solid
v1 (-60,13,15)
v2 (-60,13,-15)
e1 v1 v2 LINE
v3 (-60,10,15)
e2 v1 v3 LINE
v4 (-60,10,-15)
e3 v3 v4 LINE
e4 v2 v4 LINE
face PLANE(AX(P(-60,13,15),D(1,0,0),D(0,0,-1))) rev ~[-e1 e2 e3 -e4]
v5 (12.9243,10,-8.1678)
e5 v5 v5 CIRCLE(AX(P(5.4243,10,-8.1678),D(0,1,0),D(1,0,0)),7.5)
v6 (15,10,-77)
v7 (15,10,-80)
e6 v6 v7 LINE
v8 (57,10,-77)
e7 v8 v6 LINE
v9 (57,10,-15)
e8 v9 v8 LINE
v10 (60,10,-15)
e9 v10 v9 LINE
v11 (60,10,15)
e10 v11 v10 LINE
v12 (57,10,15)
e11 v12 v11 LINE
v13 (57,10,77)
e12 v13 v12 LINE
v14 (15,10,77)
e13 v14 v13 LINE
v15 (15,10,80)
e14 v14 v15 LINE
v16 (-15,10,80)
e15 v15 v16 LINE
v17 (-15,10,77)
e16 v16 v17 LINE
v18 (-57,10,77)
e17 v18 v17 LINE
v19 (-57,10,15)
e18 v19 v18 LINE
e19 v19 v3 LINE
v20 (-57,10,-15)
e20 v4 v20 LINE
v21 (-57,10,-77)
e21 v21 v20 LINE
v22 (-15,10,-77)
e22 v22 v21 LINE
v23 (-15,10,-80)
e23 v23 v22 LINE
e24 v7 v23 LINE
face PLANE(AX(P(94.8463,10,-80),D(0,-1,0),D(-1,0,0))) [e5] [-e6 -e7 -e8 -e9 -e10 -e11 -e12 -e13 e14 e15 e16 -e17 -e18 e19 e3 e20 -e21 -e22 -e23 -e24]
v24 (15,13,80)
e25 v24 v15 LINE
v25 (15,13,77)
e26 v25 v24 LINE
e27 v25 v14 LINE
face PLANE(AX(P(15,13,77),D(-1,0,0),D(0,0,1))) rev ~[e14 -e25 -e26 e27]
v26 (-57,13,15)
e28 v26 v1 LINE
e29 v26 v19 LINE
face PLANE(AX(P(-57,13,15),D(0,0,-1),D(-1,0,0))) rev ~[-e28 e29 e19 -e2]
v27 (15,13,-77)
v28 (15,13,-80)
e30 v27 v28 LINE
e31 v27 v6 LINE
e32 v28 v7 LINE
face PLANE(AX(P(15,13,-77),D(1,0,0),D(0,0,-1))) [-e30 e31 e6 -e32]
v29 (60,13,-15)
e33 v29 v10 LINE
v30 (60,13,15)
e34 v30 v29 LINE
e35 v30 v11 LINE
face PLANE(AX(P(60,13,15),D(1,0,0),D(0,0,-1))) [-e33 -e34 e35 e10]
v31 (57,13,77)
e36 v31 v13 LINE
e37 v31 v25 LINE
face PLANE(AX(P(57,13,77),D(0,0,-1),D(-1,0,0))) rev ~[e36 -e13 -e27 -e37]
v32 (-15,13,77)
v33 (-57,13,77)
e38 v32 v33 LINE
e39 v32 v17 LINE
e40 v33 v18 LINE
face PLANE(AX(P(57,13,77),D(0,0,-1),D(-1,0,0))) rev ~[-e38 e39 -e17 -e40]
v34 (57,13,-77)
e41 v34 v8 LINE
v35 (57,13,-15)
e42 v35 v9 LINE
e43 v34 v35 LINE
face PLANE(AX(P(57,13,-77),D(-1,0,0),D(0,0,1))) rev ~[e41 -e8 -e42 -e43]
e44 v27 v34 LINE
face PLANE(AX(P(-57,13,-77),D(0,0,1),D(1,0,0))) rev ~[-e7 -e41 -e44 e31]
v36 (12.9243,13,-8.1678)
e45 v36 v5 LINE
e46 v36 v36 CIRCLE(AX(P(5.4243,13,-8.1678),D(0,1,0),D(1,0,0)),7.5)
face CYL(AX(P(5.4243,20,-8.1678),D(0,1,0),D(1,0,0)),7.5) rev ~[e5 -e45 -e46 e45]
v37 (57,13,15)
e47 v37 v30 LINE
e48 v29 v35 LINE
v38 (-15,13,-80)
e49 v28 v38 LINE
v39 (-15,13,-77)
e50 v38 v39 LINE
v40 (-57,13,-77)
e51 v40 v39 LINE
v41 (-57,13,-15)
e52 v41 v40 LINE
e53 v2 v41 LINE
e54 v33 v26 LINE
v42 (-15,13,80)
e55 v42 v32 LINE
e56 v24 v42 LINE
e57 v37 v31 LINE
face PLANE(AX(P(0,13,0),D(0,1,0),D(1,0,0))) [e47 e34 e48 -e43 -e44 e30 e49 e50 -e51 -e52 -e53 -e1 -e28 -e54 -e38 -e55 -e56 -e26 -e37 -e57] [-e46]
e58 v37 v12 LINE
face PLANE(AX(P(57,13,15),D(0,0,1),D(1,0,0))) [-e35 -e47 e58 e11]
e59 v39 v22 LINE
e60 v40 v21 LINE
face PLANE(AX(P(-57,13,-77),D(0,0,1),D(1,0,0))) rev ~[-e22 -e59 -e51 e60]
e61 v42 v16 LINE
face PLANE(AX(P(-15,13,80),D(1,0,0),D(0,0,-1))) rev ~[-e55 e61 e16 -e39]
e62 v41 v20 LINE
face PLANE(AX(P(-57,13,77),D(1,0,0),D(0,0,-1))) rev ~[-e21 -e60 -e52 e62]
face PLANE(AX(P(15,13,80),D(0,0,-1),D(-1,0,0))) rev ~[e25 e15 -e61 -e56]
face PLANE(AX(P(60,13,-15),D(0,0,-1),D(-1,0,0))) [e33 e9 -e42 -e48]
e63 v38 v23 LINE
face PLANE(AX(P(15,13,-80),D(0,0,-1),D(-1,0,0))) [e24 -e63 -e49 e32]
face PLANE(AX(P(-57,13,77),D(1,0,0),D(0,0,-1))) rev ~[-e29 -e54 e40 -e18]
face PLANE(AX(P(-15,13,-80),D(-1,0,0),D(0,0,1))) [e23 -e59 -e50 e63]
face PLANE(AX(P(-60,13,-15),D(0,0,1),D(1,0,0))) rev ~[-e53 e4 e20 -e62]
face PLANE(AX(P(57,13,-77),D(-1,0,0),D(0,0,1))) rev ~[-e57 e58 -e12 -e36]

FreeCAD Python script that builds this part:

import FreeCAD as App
import Part
import Sketcher


def add_polygon(sketch, points):
    """Adds a closed chain of lines whose ends are joined by coincident constraints."""
    first, n = sketch.GeometryCount, len(points)
    for a, b in zip(points, points[1:] + points[:1]):
        sketch.addGeometry(Part.LineSegment(App.Vector(*a, 0), App.Vector(*b, 0)), False)
    for i in range(n):
        sketch.addConstraint(Sketcher.Constraint("Coincident", first + i, 2, first + (i + 1) % n, 1))

doc = App.newDocument("Part")
body = doc.addObject("PartDesign::Body", "Body")

sketch1 = doc.addObject("Sketcher::SketchObject", "Sketch")
body.addObject(sketch1)
sketch1.AttachmentSupport = (doc.XZ_Plane, [""])
sketch1.MapMode = "FlatFace"
add_polygon(sketch1, [(-60, -80), (-60, 80), (60, 80), (60, -80)])
sketch1.addConstraint([
    Sketcher.Constraint("Vertical", 0),
    Sketcher.Constraint("Horizontal", 1),
    Sketcher.Constraint("Vertical", 2),
    Sketcher.Constraint("Horizontal", 3),
    Sketcher.Constraint("Symmetric", 0, 2, 2, 2, -1, 1),
    Sketcher.Constraint("DistanceX", 1, 1, 1, 2, 120.0),
    Sketcher.Constraint("DistanceY", 0, 1, 0, 2, 160.0),
])
pad1 = doc.addObject("PartDesign::Pad", "Pad")
body.addObject(pad1)
pad1.Profile = sketch1
pad1.Length = 60
pad1.Reversed = True

sketch2 = doc.addObject("Sketcher::SketchObject", "Sketch001")
body.addObject(sketch2)
sketch2.AttachmentSupport = (doc.XZ_Plane, [""])
sketch2.MapMode = "FlatFace"
sketch2.AttachmentOffset = App.Placement(App.Vector(0, 0, -60), App.Rotation())
add_polygon(sketch2, [(55, 90), (55, -80), (-55, -80), (-55, 90)])
sketch2.addConstraint([
    Sketcher.Constraint("Vertical", 0),
    Sketcher.Constraint("Horizontal", 1),
    Sketcher.Constraint("Vertical", 2),
    Sketcher.Constraint("Horizontal", 3),
    Sketcher.Constraint("DistanceX", 1, 2, 1, 1, 110.0),
    Sketcher.Constraint("DistanceX", -1, 1, 0, 2, 55.0),
    Sketcher.Constraint("DistanceY", 0, 2, -1, 1, 80.0),
    Sketcher.Constraint("DistanceY", 0, 2, 0, 1, 169.711),
])
pocket1 = doc.addObject("PartDesign::Pocket", "Pocket")
body.addObject(pocket1)
pocket1.Profile = sketch2
pocket1.Length = 40
pocket1.Reversed = True

sketch3 = doc.addObject("Sketcher::SketchObject", "Sketch002")
body.addObject(sketch3)
sketch3.AttachmentSupport = (doc.XY_Plane, [""])
sketch3.MapMode = "FlatFace"
sketch3.AttachmentOffset = App.Placement(App.Vector(0, 0, -80), App.Rotation())
add_polygon(sketch3, [(-96, 10), (95, 10), (95, -37), (-96, -37)])
sketch3.addConstraint([
    Sketcher.Constraint("Horizontal", 0),
    Sketcher.Constraint("Vertical", 1),
    Sketcher.Constraint("Horizontal", 2),
    Sketcher.Constraint("Vertical", 3),
    Sketcher.Constraint("DistanceY", -1, 1, 0, 2, 10.0),
    Sketcher.Constraint("DistanceX", 0, 1, 0, 2, 191.1097),
    Sketcher.Constraint("DistanceY", 1, 2, 1, 1, 46.9465),
    Sketcher.Constraint("DistanceX", -1, 1, 0, 2, 94.8463),
])
pocket2 = doc.addObject("PartDesign::Pocket", "Pocket001")
body.addObject(pocket2)
pocket2.Profile = sketch3
pocket2.Type = "ThroughAll"
pocket2.Reversed = True

sketch4 = doc.addObject("Sketcher::SketchObject", "Sketch003")
body.addObject(sketch4)
sketch4.AttachmentSupport = (doc.XY_Plane, [""])
sketch4.MapMode = "FlatFace"
sketch4.AttachmentOffset = App.Placement(App.Vector(0, 0, 80), App.Rotation())
add_polygon(sketch4, [(55, 60), (-55, 60), (-55, 20), (55, 20)])
sketch4.addConstraint([
    Sketcher.Constraint("Horizontal", 0),
    Sketcher.Constraint("Vertical", 1),
    Sketcher.Constraint("Horizontal", 2),
    Sketcher.Constraint("Vertical", 3),
    Sketcher.Constraint("DistanceX", 0, 2, 0, 1, 110.0),
    Sketcher.Constraint("DistanceY", 1, 2, 1, 1, 40.0),
    Sketcher.Constraint("DistanceX", 0, 2, -1, 1, 55.0),
    Sketcher.Constraint("DistanceY", -1, 1, 0, 2, 60.0),
])
pad2 = doc.addObject("PartDesign::Pad", "Pad001")
body.addObject(pad2)
pad2.Profile = sketch4
pad2.Length = 5
pad2.Reversed = True

sketch5 = doc.addObject("Sketcher::SketchObject", "Sketch004")
body.addObject(sketch5)
sketch5.AttachmentSupport = (doc.XY_Plane, [""])
sketch5.MapMode = "FlatFace"
sketch5.AttachmentOffset = App.Placement(App.Vector(0, 0, -80), App.Rotation())
add_polygon(sketch5, [(55, 60), (55, 20), (-55, 20), (-55, 60)])
sketch5.addConstraint([
    Sketcher.Constraint("Vertical", 0),
    Sketcher.Constraint("Horizontal", 1),
    Sketcher.Constraint("Vertical", 2),
    Sketcher.Constraint("Horizontal", 3),
    Sketcher.Constraint("DistanceX", 1, 2, 1, 1, 110.0),
    Sketcher.Constraint("DistanceY", 0, 2, 0, 1, 40.0),
    Sketcher.Constraint("DistanceX", -1, 1, 0, 2, 55.0),
    Sketcher.Constraint("DistanceY", -1, 1, 0, 2, 20.0),
])
pad3 = doc.addObject("PartDesign::Pad", "Pad002")
body.addObject(pad3)
pad3.Profile = sketch5
pad3.Length = 5

sketch6 = doc.addObject("Sketcher::SketchObject", "Sketch005")
body.addObject(sketch6)
sketch6.AttachmentSupport = (doc.XZ_Plane, [""])
sketch6.MapMode = "FlatFace"
sketch6.AttachmentOffset = App.Placement(App.Vector(0, 0, -20), App.Rotation())
sketch6.addGeometry(Part.Circle(App.Vector(5, -8, 0), App.Vector(0, 0, 1), 8), False)
sketch6.addConstraint([
    Sketcher.Constraint("Diameter", 0, 15.0),
    Sketcher.Constraint("DistanceX", -1, 1, 0, 3, 5.4243),
    Sketcher.Constraint("DistanceY", 0, 3, -1, 1, 8.1678),
])
pocket3 = doc.addObject("PartDesign::Pocket", "Pocket002")
body.addObject(pocket3)
pocket3.Profile = sketch6
pocket3.Type = "ThroughAll"
pocket3.Reversed = True

sketch7 = doc.addObject("Sketcher::SketchObject", "Sketch006")
body.addObject(sketch7)
sketch7.AttachmentSupport = (doc.XZ_Plane, [""])
sketch7.MapMode = "FlatFace"
sketch7.AttachmentOffset = App.Placement(App.Vector(0, 0, -60), App.Rotation())
add_polygon(sketch7, [(60, -80), (-60, -80), (-60, 80), (60, 80)])
sketch7.addConstraint([
    Sketcher.Constraint("Horizontal", 0),
    Sketcher.Constraint("Vertical", 1),
    Sketcher.Constraint("Horizontal", 2),
    Sketcher.Constraint("Vertical", 3),
    Sketcher.Constraint("Symmetric", 0, 2, 2, 2, -1, 1),
    Sketcher.Constraint("DistanceX", 0, 2, 0, 1, 120.0),
    Sketcher.Constraint("DistanceY", 1, 1, 1, 2, 160.0),
])
pocket4 = doc.addObject("PartDesign::Pocket", "Pocket003")
body.addObject(pocket4)
pocket4.Profile = sketch7
pocket4.Length = 40
pocket4.Reversed = True

sketch8 = doc.addObject("Sketcher::SketchObject", "Sketch007")
body.addObject(sketch8)
sketch8.AttachmentSupport = (doc.XZ_Plane, [""])
sketch8.MapMode = "FlatFace"
sketch8.AttachmentOffset = App.Placement(App.Vector(0, 0, -20), App.Rotation())
add_polygon(sketch8, [(-60, -80), (-60, 80), (60, 80), (60, -80)])
sketch8.addConstraint([
    Sketcher.Constraint("Vertical", 0),
    Sketcher.Constraint("Horizontal", 1),
    Sketcher.Constraint("Vertical", 2),
    Sketcher.Constraint("Horizontal", 3),
    Sketcher.Constraint("Symmetric", 0, 2, 2, 2, -1, 1),
    Sketcher.Constraint("DistanceX", 1, 1, 1, 2, 120.0),
    Sketcher.Constraint("DistanceY", 0, 1, 0, 2, 160.0),
])
pocket5 = doc.addObject("PartDesign::Pocket", "Pocket004")
body.addObject(pocket5)
pocket5.Profile = sketch8
pocket5.Length = 7
pocket5.Reversed = True

sketch9 = doc.addObject("Sketcher::SketchObject", "Sketch008")
body.addObject(sketch9)
sketch9.AttachmentSupport = (doc.XZ_Plane, [""])
sketch9.MapMode = "FlatFace"
sketch9.AttachmentOffset = App.Placement(App.Vector(0, 0, -13), App.Rotation())
add_polygon(sketch9, [(-60, -80), (-60, 80), (60, 80), (60, -80)])
add_polygon(sketch9, [(-57, -77), (57, -77), (57, 77), (-57, 77)])
sketch9.addConstraint([
    Sketcher.Constraint("Vertical", 0),
    Sketcher.Constraint("Horizontal", 1),
    Sketcher.Constraint("Vertical", 2),
    Sketcher.Constraint("Horizontal", 3),
    Sketcher.Constraint("Horizontal", 4),
    Sketcher.Constraint("Vertical", 5),
    Sketcher.Constraint("Horizontal", 6),
    Sketcher.Constraint("Vertical", 7),
    Sketcher.Constraint("Symmetric", 0, 2, 2, 2, -1, 1),
    Sketcher.Constraint("Symmetric", 4, 2, 6, 2, -1, 1),
    Sketcher.Constraint("DistanceX", 4, 2, 2, 2, 3.0),
    Sketcher.Constraint("DistanceY", 2, 2, 4, 2, 3.0),
    Sketcher.Constraint("DistanceX", 1, 1, 1, 2, 120.0),
    Sketcher.Constraint("DistanceY", 0, 1, 0, 2, 160.0),
])
pocket6 = doc.addObject("PartDesign::Pocket", "Pocket005")
body.addObject(pocket6)
pocket6.Profile = sketch9
pocket6.Type = "ThroughAll"
pocket6.Reversed = True

sketch10 = doc.addObject("Sketcher::SketchObject", "Sketch009")
body.addObject(sketch10)
sketch10.AttachmentSupport = (doc.XZ_Plane, [""])
sketch10.MapMode = "FlatFace"
sketch10.AttachmentOffset = App.Placement(App.Vector(0, 0, -13), App.Rotation())
add_polygon(sketch10, [(15, 77), (-15, 77), (-15, 80), (15, 80)])
add_polygon(sketch10, [(-15, -80), (-15, -77), (15, -77), (15, -80)])
sketch10.addConstraint([
    Sketcher.Constraint("Horizontal", 0),
    Sketcher.Constraint("Vertical", 1),
    Sketcher.Constraint("Horizontal", 2),
    Sketcher.Constraint("Vertical", 3),
    Sketcher.Constraint("Vertical", 4),
    Sketcher.Constraint("Horizontal", 5),
    Sketcher.Constraint("Vertical", 6),
    Sketcher.Constraint("Horizontal", 7),
    Sketcher.Constraint("Symmetric", 3, 2, 4, 2, -1, 1),
    Sketcher.Constraint("Symmetric", 1, 2, 6, 2, -1, 1),
    Sketcher.Constraint("Vertical", 1, 2, 4, 2),
    Sketcher.Constraint("DistanceX", 0, 2, 0, 1, 30.0),
    Sketcher.Constraint("DistanceY", 1, 1, 1, 2, 3.0),
    Sketcher.Constraint("DistanceY", -1, 1, 0, 2, 77.0),
])
pad4 = doc.addObject("PartDesign::Pad", "Pad003")
body.addObject(pad4)
pad4.Profile = sketch10
pad4.Length = 3

sketch11 = doc.addObject("Sketcher::SketchObject", "Sketch010")
body.addObject(sketch11)
sketch11.AttachmentSupport = (doc.XZ_Plane, [""])
sketch11.MapMode = "FlatFace"
sketch11.AttachmentOffset = App.Placement(App.Vector(0, 0, -13), App.Rotation())
add_polygon(sketch11, [(57, -15), (57, 15), (60, 15), (60, -15)])
add_polygon(sketch11, [(-57, 15), (-57, -15), (-60, -15), (-60, 15)])
sketch11.addConstraint([
    Sketcher.Constraint("Vertical", 0),
    Sketcher.Constraint("Horizontal", 1),
    Sketcher.Constraint("Vertical", 2),
    Sketcher.Constraint("Horizontal", 3),
    Sketcher.Constraint("Vertical", 4),
    Sketcher.Constraint("Horizontal", 5),
    Sketcher.Constraint("Vertical", 6),
    Sketcher.Constraint("Horizontal", 7),
    Sketcher.Constraint("Symmetric", 0, 2, 4, 2, -1, 1),
    Sketcher.Constraint("Symmetric", 2, 2, 6, 2, -1, 1),
    Sketcher.Constraint("Horizontal", 3, 2, 4, 2),
    Sketcher.Constraint("DistanceX", 1, 1, 1, 2, 3.0),
    Sketcher.Constraint("DistanceY", 0, 1, 0, 2, 30.0),
    Sketcher.Constraint("DistanceX", -1, 1, 0, 2, 57.0),
])
pad5 = doc.addObject("PartDesign::Pad", "Pad004")
body.addObject(pad5)
pad5.Profile = sketch11
pad5.Length = 3

doc.recompute()
